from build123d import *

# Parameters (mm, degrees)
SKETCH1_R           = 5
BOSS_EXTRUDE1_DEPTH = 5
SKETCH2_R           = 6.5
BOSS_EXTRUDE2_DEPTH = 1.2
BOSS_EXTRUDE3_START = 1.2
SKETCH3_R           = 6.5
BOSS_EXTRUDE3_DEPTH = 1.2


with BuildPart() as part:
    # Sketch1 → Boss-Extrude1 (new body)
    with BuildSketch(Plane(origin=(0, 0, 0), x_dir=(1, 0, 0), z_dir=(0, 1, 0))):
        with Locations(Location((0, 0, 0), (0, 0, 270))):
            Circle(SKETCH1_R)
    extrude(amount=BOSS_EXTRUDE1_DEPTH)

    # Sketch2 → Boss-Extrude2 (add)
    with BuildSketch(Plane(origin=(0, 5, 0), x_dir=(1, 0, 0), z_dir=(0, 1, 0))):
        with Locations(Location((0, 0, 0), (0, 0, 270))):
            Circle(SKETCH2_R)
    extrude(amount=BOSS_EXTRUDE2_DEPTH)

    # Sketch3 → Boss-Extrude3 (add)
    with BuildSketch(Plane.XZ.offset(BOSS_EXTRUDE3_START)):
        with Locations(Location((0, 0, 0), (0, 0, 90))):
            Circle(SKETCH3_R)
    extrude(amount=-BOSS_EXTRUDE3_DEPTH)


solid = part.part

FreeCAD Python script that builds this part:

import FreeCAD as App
import Part
import Sketcher
from FreeCAD import Vector

doc = App.newDocument("Part")
params = doc.addObject("Spreadsheet::Sheet", "Params")
for row, (alias, value) in enumerate([
    ("sketch1_diameter", "10 mm"),
    ("pad1_length", "5 mm"),
    ("sketch2_diameter", "13 mm"),
    ("pad2_length", "1.2 mm"),
    ("sketch3_diameter", "13 mm"),
    ("pad3_length", "1.2 mm"),
], start=1):
    params.set(f"A{row}", alias)
    params.set(f"B{row}", "=" + value)
    params.setAlias(f"B{row}", alias)

body = doc.addObject("PartDesign::Body", "Body")

sketch1 = doc.addObject("Sketcher::SketchObject", "Sketch")
body.addObject(sketch1)
sketch1.AttachmentSupport = (doc.XZ_Plane, [""])
sketch1.MapMode = "FlatFace"
sketch1.addGeometry(Part.Circle(Vector(0, 0, 0), Vector(0, 0, 1), 5), False)
sketch1.addConstraint(Sketcher.Constraint("Coincident", 0, 3, -1, 1))
sketch1.addConstraint(Sketcher.Constraint("Diameter", 0, 10.0))
sketch1.setExpression("Constraints[1]", "Params.sketch1_diameter")
pad1 = doc.addObject("PartDesign::Pad", "Pad")
body.addObject(pad1)
pad1.Profile = sketch1
pad1.setExpression("Length", "Params.pad1_length")
pad1.Reversed = True

sketch2 = doc.addObject("Sketcher::SketchObject", "Sketch001")
body.addObject(sketch2)
sketch2.AttachmentSupport = (doc.XZ_Plane, [""])
sketch2.MapMode = "FlatFace"
sketch2.AttachmentOffset = App.Placement(Vector(0, 0, -5), App.Rotation())
sketch2.addGeometry(Part.Circle(Vector(0, 0, 0), Vector(0, 0, 1), 6.5), False)
sketch2.addConstraint(Sketcher.Constraint("Coincident", 0, 3, -1, 1))
sketch2.addConstraint(Sketcher.Constraint("Diameter", 0, 13.0))
sketch2.setExpression("Constraints[1]", "Params.sketch2_diameter")
pad2 = doc.addObject("PartDesign::Pad", "Pad001")
body.addObject(pad2)
pad2.Profile = sketch2
pad2.setExpression("Length", "Params.pad2_length")
pad2.Reversed = True

sketch3 = doc.addObject("Sketcher::SketchObject", "Sketch002")
body.addObject(sketch3)
sketch3.AttachmentSupport = (doc.XZ_Plane, [""])
sketch3.MapMode = "FlatFace"
sketch3.AttachmentOffset = App.Placement(Vector(0, 0, 1.2), App.Rotation())
sketch3.addGeometry(Part.Circle(Vector(0, 0, 0), Vector(0, 0, 1), 6.5), False)
sketch3.addConstraint(Sketcher.Constraint("Coincident", 0, 3, -1, 1))
sketch3.addConstraint(Sketcher.Constraint("Diameter", 0, 13.0))
sketch3.setExpression("Constraints[1]", "Params.sketch3_diameter")
pad3 = doc.addObject("PartDesign::Pad", "Pad002")
body.addObject(pad3)
pad3.Profile = sketch3
pad3.setExpression("Length", "Params.pad3_length")
pad3.Reversed = True

doc.recompute()
